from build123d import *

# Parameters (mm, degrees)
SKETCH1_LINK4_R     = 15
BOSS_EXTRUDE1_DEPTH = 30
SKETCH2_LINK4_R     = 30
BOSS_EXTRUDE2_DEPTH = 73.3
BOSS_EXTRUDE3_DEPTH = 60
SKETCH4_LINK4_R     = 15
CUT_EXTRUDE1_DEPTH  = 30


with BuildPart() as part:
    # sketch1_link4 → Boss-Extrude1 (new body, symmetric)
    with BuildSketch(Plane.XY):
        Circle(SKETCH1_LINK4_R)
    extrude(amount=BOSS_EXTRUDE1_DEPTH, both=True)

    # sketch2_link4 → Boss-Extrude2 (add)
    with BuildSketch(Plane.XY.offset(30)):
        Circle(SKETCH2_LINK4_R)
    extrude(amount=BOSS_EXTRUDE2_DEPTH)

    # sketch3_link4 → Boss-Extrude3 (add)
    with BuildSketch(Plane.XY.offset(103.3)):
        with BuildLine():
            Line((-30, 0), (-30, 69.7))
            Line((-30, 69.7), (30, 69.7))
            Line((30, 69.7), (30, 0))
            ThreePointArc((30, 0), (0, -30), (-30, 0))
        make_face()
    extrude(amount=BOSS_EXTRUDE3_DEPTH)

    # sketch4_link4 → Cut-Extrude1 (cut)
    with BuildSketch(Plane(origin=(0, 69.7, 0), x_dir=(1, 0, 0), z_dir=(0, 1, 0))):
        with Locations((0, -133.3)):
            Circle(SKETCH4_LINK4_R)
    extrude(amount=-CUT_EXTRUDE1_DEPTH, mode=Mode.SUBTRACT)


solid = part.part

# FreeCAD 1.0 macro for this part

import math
import FreeCAD as App
import Part
import Sketcher
Q = App.Units.Quantity

doc = App.newDocument("Part")
params = doc.addObject("Spreadsheet::Sheet", "Params")
for row, (alias, value) in enumerate([
    ("sketch1_diameter", "30 mm"),
    ("pad1_length", "60 mm"),
    ("sketch2_diameter", "60 mm"),
    ("pad2_length", "73.3 mm"),
    ("sketch3_radius", "30 mm"),
    ("sketch3_height", "69.7 mm"),
    ("pad3_length", "60 mm"),
    ("sketch4_diameter", "30 mm"),
    ("pocket1_length", "30 mm"),
], start=1):
    params.set(f"A{row}", alias)
    params.set(f"B{row}", "=" + value)
    params.setAlias(f"B{row}", alias)

body = doc.addObject("PartDesign::Body", "Body")

# Sketch on XY plane
sketch1 = body.newObject("Sketcher::SketchObject", "Sketch")
sketch1.AttachmentSupport = (doc.getObject("XY_Plane"), [""])
sketch1.MapMode = "FlatFace"
sketch1.addGeometry(Part.Circle(App.Vector(0, 0, 0), App.Vector(0, 0, 1), 15), False)
sketch1.addConstraint(Sketcher.Constraint("Coincident", 0, 3, -1, 1))
sketch1.addConstraint(Sketcher.Constraint("Diameter", 0, Q("30 mm")))
sketch1.setExpression("Constraints[1]", "Params.sketch1_diameter")
pad1 = body.newObject("PartDesign::Pad", "Pad")
pad1.Profile = sketch1
pad1.setExpression("Length", "Params.pad1_length")
pad1.Midplane = True

# Sketch on XY plane
sketch2 = body.newObject("Sketcher::SketchObject", "Sketch001")
sketch2.AttachmentSupport = (doc.getObject("XY_Plane"), [""])
sketch2.MapMode = "FlatFace"
sketch2.AttachmentOffset = App.Placement(App.Vector(0, 0, 30), App.Rotation())
sketch2.addGeometry(Part.Circle(App.Vector(0, 0, 0), App.Vector(0, 0, 1), 30), False)
sketch2.addConstraint(Sketcher.Constraint("Coincident", 0, 3, -1, 1))
sketch2.addConstraint(Sketcher.Constraint("Diameter", 0, Q("60 mm")))
sketch2.setExpression("Constraints[1]", "Params.sketch2_diameter")
pad2 = body.newObject("PartDesign::Pad", "Pad001")
pad2.Profile = sketch2
pad2.setExpression("Length", "Params.pad2_length")

# Sketch on XY plane
sketch3 = body.newObject("Sketcher::SketchObject", "Sketch002")
sketch3.AttachmentSupport = (doc.getObject("XY_Plane"), [""])
sketch3.MapMode = "FlatFace"
sketch3.AttachmentOffset = App.Placement(App.Vector(0, 0, 103.3), App.Rotation())
sketch3.addGeometry(Part.LineSegment(App.Vector(-30, 69.7, 0), App.Vector(-30, 0, 0)), False)
sketch3.addGeometry(Part.ArcOfCircle(Part.Circle(App.Vector(0, 0, 0), App.Vector(0, 0, 1), 30), math.radians(180), math.radians(360)), False)
sketch3.addGeometry(Part.LineSegment(App.Vector(30, 0, 0), App.Vector(30, 69.7, 0)), False)
sketch3.addGeometry(Part.LineSegment(App.Vector(30, 69.7, 0), App.Vector(-30, 69.7, 0)), False)
sketch3.addConstraint(Sketcher.Constraint("Tangent", 0, 2, 1, 1))
sketch3.addConstraint(Sketcher.Constraint("Tangent", 1, 2, 2, 1))
sketch3.addConstraint(Sketcher.Constraint("Coincident", 2, 2, 3, 1))
sketch3.addConstraint(Sketcher.Constraint("Coincident", 3, 2, 0, 1))
sketch3.addConstraint(Sketcher.Constraint("Vertical", 0))
sketch3.addConstraint(Sketcher.Constraint("Vertical", 2))
sketch3.addConstraint(Sketcher.Constraint("Horizontal", 3))
sketch3.addConstraint(Sketcher.Constraint("Coincident", 1, 3, -1, 1))
sketch3.addConstraint(Sketcher.Constraint("Radius", 1, Q("30 mm")))
sketch3.addConstraint(Sketcher.Constraint("DistanceY", 0, 2, 0, 1, Q("69.7 mm")))
sketch3.setExpression("Constraints[8]", "Params.sketch3_radius")
sketch3.setExpression("Constraints[9]", "Params.sketch3_height")
pad3 = body.newObject("PartDesign::Pad", "Pad002")
pad3.Profile = sketch3
pad3.setExpression("Length", "Params.pad3_length")

# Sketch on XZ plane
sketch4 = body.newObject("Sketcher::SketchObject", "Sketch003")
sketch4.AttachmentSupport = (doc.getObject("XZ_Plane"), [""])
sketch4.MapMode = "FlatFace"
sketch4.AttachmentOffset = App.Placement(App.Vector(0, 0, -69.7), App.Rotation())
sketch4.addGeometry(Part.Circle(App.Vector(0, 133.3, 0), App.Vector(0, 0, 1), 15), False)
sketch4.addConstraint(Sketcher.Constraint("PointOnObject", 0, 3, -2))
sketch4.addConstraint(Sketcher.Constraint("Diameter", 0, Q("30 mm")))
sketch4.addConstraint(Sketcher.Constraint("DistanceY", -1, 1, 0, 3, Q("133.3 mm")))
sketch4.setExpression("Constraints[1]", "Params.sketch4_diameter")
pocket1 = body.newObject("PartDesign::Pocket", "Pocket")
pocket1.Profile = sketch4
pocket1.setExpression("Length", "Params.pocket1_length")
pocket1.Reversed = True

doc.recompute()
